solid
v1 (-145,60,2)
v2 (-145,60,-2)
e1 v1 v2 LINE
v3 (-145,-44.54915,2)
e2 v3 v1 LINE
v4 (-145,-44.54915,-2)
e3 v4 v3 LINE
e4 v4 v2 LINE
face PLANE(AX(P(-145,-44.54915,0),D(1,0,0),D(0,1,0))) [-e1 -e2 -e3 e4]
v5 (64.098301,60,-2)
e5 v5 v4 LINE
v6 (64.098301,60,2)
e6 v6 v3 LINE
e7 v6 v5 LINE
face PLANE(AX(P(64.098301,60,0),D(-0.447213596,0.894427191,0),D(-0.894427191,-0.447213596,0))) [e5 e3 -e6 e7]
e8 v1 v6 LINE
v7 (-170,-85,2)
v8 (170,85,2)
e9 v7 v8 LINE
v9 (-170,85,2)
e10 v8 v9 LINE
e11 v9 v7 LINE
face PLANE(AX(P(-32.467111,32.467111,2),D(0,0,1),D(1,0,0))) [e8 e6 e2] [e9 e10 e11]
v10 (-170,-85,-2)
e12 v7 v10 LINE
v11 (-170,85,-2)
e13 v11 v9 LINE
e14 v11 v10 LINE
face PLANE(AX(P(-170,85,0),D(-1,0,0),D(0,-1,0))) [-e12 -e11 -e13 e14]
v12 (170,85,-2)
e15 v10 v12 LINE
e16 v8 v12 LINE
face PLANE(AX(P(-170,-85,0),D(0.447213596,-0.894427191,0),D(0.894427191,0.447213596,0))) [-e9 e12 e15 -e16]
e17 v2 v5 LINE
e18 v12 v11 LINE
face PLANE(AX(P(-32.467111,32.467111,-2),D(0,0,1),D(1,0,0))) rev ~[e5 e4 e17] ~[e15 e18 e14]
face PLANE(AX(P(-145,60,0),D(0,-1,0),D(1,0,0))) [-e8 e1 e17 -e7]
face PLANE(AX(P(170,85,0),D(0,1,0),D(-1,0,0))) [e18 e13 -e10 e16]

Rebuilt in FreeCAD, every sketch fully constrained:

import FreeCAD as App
import Part
import Sketcher
from FreeCAD import Vector


def add_polygon(sketch, points):
    """Adds a closed chain of lines whose ends are joined by coincident constraints."""
    first, n = sketch.GeometryCount, len(points)
    for a, b in zip(points, points[1:] + points[:1]):
        sketch.addGeometry(Part.LineSegment(App.Vector(*a, 0), App.Vector(*b, 0)), False)
    for i in range(n):
        sketch.addConstraint(Sketcher.Constraint("Coincident", first + i, 2, first + (i + 1) % n, 1))

doc = App.newDocument("Part")
params = doc.addObject("Spreadsheet::Sheet", "Params")
for row, (alias, value) in enumerate([
    ("sketch1_width", "340 mm"),
    ("sketch1_height", "170 mm"),
    ("pad1_length", "4 mm"),
], start=1):
    params.set(f"A{row}", alias)
    params.set(f"B{row}", "=" + value)
    params.setAlias(f"B{row}", alias)

body = doc.addObject("PartDesign::Body", "Body")

# Sketch on XY plane
sketch1 = body.newObject("Sketcher::SketchObject", "Sketch")
sketch1.AttachmentSupport = (doc.getObject("XY_Plane"), [""])
sketch1.MapMode = "FlatFace"
add_polygon(sketch1, [(170, 85), (-170, 85), (-170, -85)])  # lines 0-2
add_polygon(sketch1, [(64.098301, 60), (-145, -44.54915), (-145, 60)])  # lines 3-5
sketch1.addConstraint([
    Sketcher.Constraint("Horizontal", 0),
    Sketcher.Constraint("Vertical", 1),
    Sketcher.Constraint("Vertical", 4),
    Sketcher.Constraint("Horizontal", 5),
    Sketcher.Constraint("Symmetric", 1, 2, 2, 2, -1, 1),
    Sketcher.Constraint("Parallel", 2, 3),
    Sketcher.Constraint("DistanceX", 0, 2, 0, 1, 340.0),
    Sketcher.Constraint("DistanceY", 1, 2, 1, 1, 170.0),
    Sketcher.Constraint("DistanceX", 3, 2, -1, 1, 145.0),
    Sketcher.Constraint("DistanceY", -1, 1, 4, 2, 60.0),
    Sketcher.Constraint("DistanceX", 5, 1, 5, 2, 209.098301),
])
sketch1.setExpression("Constraints[12]", "Params.sketch1_width")
sketch1.setExpression("Constraints[13]", "Params.sketch1_height")
pad1 = body.newObject("PartDesign::Pad", "Pad")
pad1.Profile = sketch1
pad1.setExpression("Length", "Params.pad1_length")
pad1.Midplane = True

doc.recompute()
